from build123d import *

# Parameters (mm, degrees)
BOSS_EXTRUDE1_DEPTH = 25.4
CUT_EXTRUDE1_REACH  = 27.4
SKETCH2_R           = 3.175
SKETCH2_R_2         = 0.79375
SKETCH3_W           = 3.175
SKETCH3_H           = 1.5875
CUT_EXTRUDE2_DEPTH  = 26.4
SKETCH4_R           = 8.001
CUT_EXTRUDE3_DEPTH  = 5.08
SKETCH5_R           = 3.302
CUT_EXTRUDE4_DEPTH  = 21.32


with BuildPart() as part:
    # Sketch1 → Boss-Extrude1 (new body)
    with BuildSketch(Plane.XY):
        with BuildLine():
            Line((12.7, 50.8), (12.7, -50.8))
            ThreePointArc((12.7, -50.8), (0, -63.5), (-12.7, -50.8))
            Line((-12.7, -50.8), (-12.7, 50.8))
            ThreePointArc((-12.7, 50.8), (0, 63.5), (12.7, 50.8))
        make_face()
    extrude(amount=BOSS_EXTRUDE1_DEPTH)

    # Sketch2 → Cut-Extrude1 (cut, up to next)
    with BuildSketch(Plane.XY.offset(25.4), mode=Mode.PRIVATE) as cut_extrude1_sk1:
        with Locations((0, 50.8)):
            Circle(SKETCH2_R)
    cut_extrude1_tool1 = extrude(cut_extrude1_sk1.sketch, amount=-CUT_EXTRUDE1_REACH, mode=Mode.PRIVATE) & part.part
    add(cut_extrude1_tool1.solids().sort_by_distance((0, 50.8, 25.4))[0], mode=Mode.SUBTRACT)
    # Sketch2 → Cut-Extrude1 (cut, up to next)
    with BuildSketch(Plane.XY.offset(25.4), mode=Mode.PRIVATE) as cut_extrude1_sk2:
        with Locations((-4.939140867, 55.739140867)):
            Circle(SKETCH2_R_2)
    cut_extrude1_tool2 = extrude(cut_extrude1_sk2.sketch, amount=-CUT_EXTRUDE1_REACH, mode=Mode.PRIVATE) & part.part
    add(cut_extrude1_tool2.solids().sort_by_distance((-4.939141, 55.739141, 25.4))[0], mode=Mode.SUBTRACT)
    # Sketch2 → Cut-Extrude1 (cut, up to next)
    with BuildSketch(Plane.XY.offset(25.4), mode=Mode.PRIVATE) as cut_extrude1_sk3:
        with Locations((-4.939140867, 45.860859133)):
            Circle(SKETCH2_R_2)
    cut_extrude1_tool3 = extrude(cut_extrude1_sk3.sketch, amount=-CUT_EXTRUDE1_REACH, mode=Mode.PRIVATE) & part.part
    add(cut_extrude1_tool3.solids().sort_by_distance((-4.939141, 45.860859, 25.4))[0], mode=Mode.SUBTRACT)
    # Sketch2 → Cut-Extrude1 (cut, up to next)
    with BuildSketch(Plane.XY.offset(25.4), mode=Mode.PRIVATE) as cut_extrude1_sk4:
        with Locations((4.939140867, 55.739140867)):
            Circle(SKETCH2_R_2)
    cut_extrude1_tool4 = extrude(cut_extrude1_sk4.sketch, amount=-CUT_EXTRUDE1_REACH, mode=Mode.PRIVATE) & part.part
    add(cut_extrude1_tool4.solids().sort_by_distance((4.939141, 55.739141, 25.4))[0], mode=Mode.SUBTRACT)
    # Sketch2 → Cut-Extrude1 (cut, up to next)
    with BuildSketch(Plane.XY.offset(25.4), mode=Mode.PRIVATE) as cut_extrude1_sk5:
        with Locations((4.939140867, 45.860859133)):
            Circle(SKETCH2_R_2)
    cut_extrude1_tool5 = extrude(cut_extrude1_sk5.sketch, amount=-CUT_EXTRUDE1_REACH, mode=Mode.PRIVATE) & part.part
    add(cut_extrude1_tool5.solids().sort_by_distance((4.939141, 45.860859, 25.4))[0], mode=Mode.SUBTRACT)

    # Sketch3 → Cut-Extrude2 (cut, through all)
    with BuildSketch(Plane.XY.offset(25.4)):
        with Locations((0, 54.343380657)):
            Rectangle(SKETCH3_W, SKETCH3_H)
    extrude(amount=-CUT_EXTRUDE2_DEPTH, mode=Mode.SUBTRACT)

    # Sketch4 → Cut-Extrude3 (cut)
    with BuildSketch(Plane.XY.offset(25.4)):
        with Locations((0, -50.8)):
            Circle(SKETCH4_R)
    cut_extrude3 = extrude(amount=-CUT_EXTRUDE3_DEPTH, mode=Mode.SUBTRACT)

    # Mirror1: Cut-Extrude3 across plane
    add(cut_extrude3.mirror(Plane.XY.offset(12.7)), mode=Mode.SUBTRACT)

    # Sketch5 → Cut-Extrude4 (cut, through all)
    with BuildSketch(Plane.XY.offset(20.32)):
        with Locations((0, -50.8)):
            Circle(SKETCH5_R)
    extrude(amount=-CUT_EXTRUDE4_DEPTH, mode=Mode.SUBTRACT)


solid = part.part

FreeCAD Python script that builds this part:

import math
import FreeCAD as App
import Part
import Sketcher

V = App.Vector
Q = App.Units.Quantity


def add_polygon(sketch, points):
    """Adds a closed chain of lines whose ends are joined by coincident constraints."""
    first, n = sketch.GeometryCount, len(points)
    for a, b in zip(points, points[1:] + points[:1]):
        sketch.addGeometry(Part.LineSegment(App.Vector(*a, 0), App.Vector(*b, 0)), False)
    for i in range(n):
        sketch.addConstraint(Sketcher.Constraint("Coincident", first + i, 2, first + (i + 1) % n, 1))

doc = App.newDocument("Part")
body = doc.addObject("PartDesign::Body", "Body")

sketch1 = body.newObject("Sketcher::SketchObject", "Sketch")
sketch1.AttachmentSupport = (doc.getObject("XY_Plane"), [""])
sketch1.MapMode = "FlatFace"
sketch1.addGeometry([
    Part.LineSegment(V(13, -51, 0), V(13, 51, 0)),
    Part.ArcOfCircle(Part.Circle(V(0, 51, 0), V(0, 0, 1), 13), math.radians(0), math.radians(180)),
    Part.LineSegment(V(-13, 51, 0), V(-13, -51, 0)),
    Part.ArcOfCircle(Part.Circle(V(0, -51, 0), V(0, 0, 1), 13), math.radians(180), math.radians(360)),
], False)
sketch1.addConstraint([
    Sketcher.Constraint("Tangent", 0, 2, 1, 1),
    Sketcher.Constraint("Tangent", 1, 2, 2, 1),
    Sketcher.Constraint("Tangent", 2, 2, 3, 1),
    Sketcher.Constraint("Tangent", 3, 2, 0, 1),
    Sketcher.Constraint("Vertical", 0),
    Sketcher.Constraint("Vertical", 2),
    Sketcher.Constraint("Symmetric", 1, 3, 3, 3, -1, 1),
    Sketcher.Constraint("Radius", 1, Q("0.5 in")),
    Sketcher.Constraint("DistanceY", 0, 1, 0, 2, Q("4 in")),
])
pad1 = body.newObject("PartDesign::Pad", "Pad")
pad1.Profile = sketch1
pad1.Length = Q("1 in")

sketch2 = body.newObject("Sketcher::SketchObject", "Sketch001")
sketch2.AttachmentSupport = (doc.getObject("XY_Plane"), [""])
sketch2.MapMode = "FlatFace"
sketch2.AttachmentOffset = App.Placement(V(0, 0, 1 * 25.4), App.Rotation())
sketch2.addGeometry(Part.Circle(V(0, 50.8, 0), V(0, 0, 1), 3.2), False)
sketch2.addConstraint([
    Sketcher.Constraint("PointOnObject", 0, 3, -2),
    Sketcher.Constraint("Diameter", 0, Q("0.25 in")),
    Sketcher.Constraint("DistanceY", -1, 1, 0, 3, Q("2 in")),
])
pocket1 = body.newObject("PartDesign::Pocket", "Pocket")
pocket1.Profile = sketch2
pocket1.Type = "UpToFirst"

sketch3 = body.newObject("Sketcher::SketchObject", "Sketch002")
sketch3.AttachmentSupport = (doc.getObject("XY_Plane"), [""])
sketch3.MapMode = "FlatFace"
sketch3.AttachmentOffset = App.Placement(V(0, 0, 1 * 25.4), App.Rotation())
sketch3.addGeometry(Part.Circle(V(-4.9, 55.7, 0), V(0, 0, 1), 0.8), False)
sketch3.addConstraint([
    Sketcher.Constraint("Diameter", 0, Q("0.0625 in")),
    Sketcher.Constraint("DistanceX", 0, 3, -1, 1, 4.939141),
    Sketcher.Constraint("DistanceY", -1, 1, 0, 3, 55.739141),
])
pocket2 = body.newObject("PartDesign::Pocket", "Pocket001")
pocket2.Profile = sketch3
pocket2.Type = "UpToFirst"

sketch4 = body.newObject("Sketcher::SketchObject", "Sketch003")
sketch4.AttachmentSupport = (doc.getObject("XY_Plane"), [""])
sketch4.MapMode = "FlatFace"
sketch4.AttachmentOffset = App.Placement(V(0, 0, 1 * 25.4), App.Rotation())
sketch4.addGeometry(Part.Circle(V(-4.9, 45.9, 0), V(0, 0, 1), 0.8), False)
sketch4.addConstraint([
    Sketcher.Constraint("Diameter", 0, Q("0.0625 in")),
    Sketcher.Constraint("DistanceX", 0, 3, -1, 1, 4.939141),
    Sketcher.Constraint("DistanceY", -1, 1, 0, 3, 45.860859),
])
pocket3 = body.newObject("PartDesign::Pocket", "Pocket002")
pocket3.Profile = sketch4
pocket3.Type = "UpToFirst"

sketch5 = body.newObject("Sketcher::SketchObject", "Sketch004")
sketch5.AttachmentSupport = (doc.getObject("XY_Plane"), [""])
sketch5.MapMode = "FlatFace"
sketch5.AttachmentOffset = App.Placement(V(0, 0, 1 * 25.4), App.Rotation())
sketch5.addGeometry(Part.Circle(V(4.9, 55.7, 0), V(0, 0, 1), 0.8), False)
sketch5.addConstraint([
    Sketcher.Constraint("Diameter", 0, Q("0.0625 in")),
    Sketcher.Constraint("DistanceX", -1, 1, 0, 3, 4.939141),
    Sketcher.Constraint("DistanceY", -1, 1, 0, 3, 55.739141),
])
pocket4 = body.newObject("PartDesign::Pocket", "Pocket003")
pocket4.Profile = sketch5
pocket4.Type = "UpToFirst"

sketch6 = body.newObject("Sketcher::SketchObject", "Sketch005")
sketch6.AttachmentSupport = (doc.getObject("XY_Plane"), [""])
sketch6.MapMode = "FlatFace"
sketch6.AttachmentOffset = App.Placement(V(0, 0, 1 * 25.4), App.Rotation())
sketch6.addGeometry(Part.Circle(V(4.9, 45.9, 0), V(0, 0, 1), 0.8), False)
sketch6.addConstraint([
    Sketcher.Constraint("Diameter", 0, Q("0.0625 in")),
    Sketcher.Constraint("DistanceX", -1, 1, 0, 3, 4.939141),
    Sketcher.Constraint("DistanceY", -1, 1, 0, 3, 45.860859),
])
pocket5 = body.newObject("PartDesign::Pocket", "Pocket004")
pocket5.Profile = sketch6
pocket5.Type = "UpToFirst"

sketch7 = body.newObject("Sketcher::SketchObject", "Sketch006")
sketch7.AttachmentSupport = (doc.getObject("XY_Plane"), [""])
sketch7.MapMode = "FlatFace"
sketch7.AttachmentOffset = App.Placement(V(0, 0, 1 * 25.4), App.Rotation())
add_polygon(sketch7, [(-1.6, 55.1), (-1.6, 53.5), (1.6, 53.5), (1.6, 55.1)])
sketch7.addConstraint([
    Sketcher.Constraint("Vertical", 0),
    Sketcher.Constraint("Horizontal", 1),
    Sketcher.Constraint("Vertical", 2),
    Sketcher.Constraint("Horizontal", 3),
    Sketcher.Constraint("DistanceX", 1, 1, 1, 2, Q("0.125 in")),
    Sketcher.Constraint("DistanceY", 0, 2, 0, 1, Q("0.0625 in")),
    Sketcher.Constraint("DistanceX", 0, 2, -1, 1, Q("0.0625 in")),
    Sketcher.Constraint("DistanceY", -1, 1, 0, 2, 53.549631),
])
pocket6 = body.newObject("PartDesign::Pocket", "Pocket005")
pocket6.Profile = sketch7
pocket6.Type = "ThroughAll"

sketch8 = body.newObject("Sketcher::SketchObject", "Sketch007")
sketch8.AttachmentSupport = (doc.getObject("XY_Plane"), [""])
sketch8.MapMode = "FlatFace"
sketch8.AttachmentOffset = App.Placement(V(0, 0, 1 * 25.4), App.Rotation())
sketch8.addGeometry(Part.Circle(V(0, -51, 0), V(0, 0, 1), 8), False)
sketch8.addConstraint([
    Sketcher.Constraint("PointOnObject", 0, 3, -2),
    Sketcher.Constraint("Diameter", 0, Q("0.63 in")),
    Sketcher.Constraint("DistanceY", 0, 3, -1, 1, Q("2 in")),
])
pocket7 = body.newObject("PartDesign::Pocket", "Pocket006")
pocket7.Profile = sketch8
pocket7.Length = Q("0.2 in")
doc.recompute()

datumplane = body.newObject("PartDesign::Plane", "DatumPlane")
datumplane.AttachmentSupport = (doc.getObject("XY_Plane"), [""])
datumplane.MapMode = "FlatFace"
datumplane.AttachmentOffset = App.Placement(V(0, 0, 0.5 * 25.4), App.Rotation())
mirrored = body.newObject("PartDesign::Mirrored", "Mirrored")
mirrored.Originals = [pocket7]
mirrored.MirrorPlane = (datumplane, [""])
body.Tip = mirrored

sketch9 = body.newObject("Sketcher::SketchObject", "Sketch008")
sketch9.AttachmentSupport = (doc.getObject("XY_Plane"), [""])
sketch9.MapMode = "FlatFace"
sketch9.AttachmentOffset = App.Placement(V(0, 0, 0.8 * 25.4), App.Rotation())
sketch9.addGeometry(Part.Circle(V(0, -50.8, 0), V(0, 0, 1), 3.3), False)
sketch9.addConstraint([
    Sketcher.Constraint("PointOnObject", 0, 3, -2),
    Sketcher.Constraint("Diameter", 0, Q("0.26 in")),
    Sketcher.Constraint("DistanceY", 0, 3, -1, 1, Q("2 in")),
])
pocket8 = body.newObject("PartDesign::Pocket", "Pocket007")
pocket8.Profile = sketch9
pocket8.Type = "ThroughAll"

doc.recompute()
